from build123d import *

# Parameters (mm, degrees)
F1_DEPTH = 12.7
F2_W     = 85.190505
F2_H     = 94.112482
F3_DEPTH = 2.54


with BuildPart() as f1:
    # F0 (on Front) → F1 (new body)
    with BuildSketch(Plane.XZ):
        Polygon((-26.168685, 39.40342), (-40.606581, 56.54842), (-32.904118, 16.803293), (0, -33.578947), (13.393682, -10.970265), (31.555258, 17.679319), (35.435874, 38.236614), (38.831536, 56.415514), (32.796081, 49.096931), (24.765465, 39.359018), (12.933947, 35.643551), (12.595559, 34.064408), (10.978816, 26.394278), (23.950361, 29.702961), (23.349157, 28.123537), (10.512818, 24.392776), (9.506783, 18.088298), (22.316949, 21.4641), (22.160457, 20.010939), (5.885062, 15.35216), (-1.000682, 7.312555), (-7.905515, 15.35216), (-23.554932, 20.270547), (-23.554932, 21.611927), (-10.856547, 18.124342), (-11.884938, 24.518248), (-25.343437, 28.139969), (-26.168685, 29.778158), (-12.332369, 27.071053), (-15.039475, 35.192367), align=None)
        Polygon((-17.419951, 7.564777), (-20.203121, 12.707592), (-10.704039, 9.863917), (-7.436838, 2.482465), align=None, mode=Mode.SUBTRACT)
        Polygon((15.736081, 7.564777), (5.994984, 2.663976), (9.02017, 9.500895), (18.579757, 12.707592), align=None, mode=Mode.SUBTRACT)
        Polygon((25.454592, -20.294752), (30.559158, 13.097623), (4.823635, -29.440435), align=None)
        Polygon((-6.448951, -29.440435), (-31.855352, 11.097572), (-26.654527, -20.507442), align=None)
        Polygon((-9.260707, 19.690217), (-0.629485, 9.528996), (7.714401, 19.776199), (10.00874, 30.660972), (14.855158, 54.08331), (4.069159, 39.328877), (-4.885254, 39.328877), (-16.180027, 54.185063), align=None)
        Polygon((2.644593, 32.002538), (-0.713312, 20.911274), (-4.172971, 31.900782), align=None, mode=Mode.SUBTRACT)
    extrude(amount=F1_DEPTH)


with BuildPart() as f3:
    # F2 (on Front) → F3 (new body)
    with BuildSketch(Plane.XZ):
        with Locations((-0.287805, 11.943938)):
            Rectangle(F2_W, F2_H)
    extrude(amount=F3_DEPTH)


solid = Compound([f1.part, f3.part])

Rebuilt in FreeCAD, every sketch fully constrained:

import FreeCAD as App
import Part
import Sketcher
Q = App.Units.Quantity


def add_polygon(sketch, points):
    """Adds a closed chain of lines whose ends are joined by coincident constraints."""
    first, n = sketch.GeometryCount, len(points)
    for a, b in zip(points, points[1:] + points[:1]):
        sketch.addGeometry(Part.LineSegment(App.Vector(*a, 0), App.Vector(*b, 0)), False)
    for i in range(n):
        sketch.addConstraint(Sketcher.Constraint("Coincident", first + i, 2, first + (i + 1) % n, 1))

doc = App.newDocument("Part")
params = doc.addObject("Spreadsheet::Sheet", "Params")
for row, (alias, value) in enumerate([
    ("pad1_length", "0.5 in"),
    ("pad2_length", "0.1 in"),
], start=1):
    params.set(f"A{row}", alias)
    params.set(f"B{row}", "=" + value)
    params.setAlias(f"B{row}", alias)

body = doc.addObject("PartDesign::Body", "Body")
body.AllowCompound = True

# Sketch on XZ plane
sketch1 = body.newObject("Sketcher::SketchObject", "Sketch")
sketch1.AttachmentSupport = (doc.getObject("XZ_Plane"), [""])
sketch1.MapMode = "FlatFace"
add_polygon(sketch1, [(-26.168685, 39.40342), (-40.606581, 56.54842), (-32.904118, 16.803293), (0, -33.578947), (13.393682, -10.970265), (31.555258, 17.679319), (35.435874, 38.236614), (38.831536, 56.415514), (32.796081, 49.096931), (24.765465, 39.359018), (12.933947, 35.643551), (12.595559, 34.064408), (10.978816, 26.394278), (23.950361, 29.702961), (23.349157, 28.123537), (10.512818, 24.392776), (9.506783, 18.088298), (22.316949, 21.4641), (22.160457, 20.010939), (5.885062, 15.35216), (-1.000682, 7.312555), (-7.905515, 15.35216), (-23.554932, 20.270547), (-23.554932, 21.611927), (-10.856547, 18.124342), (-11.884938, 24.518248), (-25.343437, 28.139969), (-26.168685, 29.778158), (-12.332369, 27.071053), (-15.039475, 35.192367)])  # lines 0-29
add_polygon(sketch1, [(-7.436838, 2.482465), (-17.419951, 7.564777), (-20.203121, 12.707592), (-10.704039, 9.863917)])  # lines 30-33
add_polygon(sketch1, [(18.579757, 12.707592), (15.736081, 7.564777), (5.994984, 2.663976), (9.02017, 9.500895)])  # lines 34-37
add_polygon(sketch1, [(25.454592, -20.294752), (30.559158, 13.097623), (4.823635, -29.440435)])  # lines 38-40
add_polygon(sketch1, [(-6.448951, -29.440435), (-31.855352, 11.097572), (-26.654527, -20.507442)])  # lines 41-43
add_polygon(sketch1, [(-9.260707, 19.690217), (-0.629485, 9.528996), (7.714401, 19.776199), (10.00874, 30.660972), (14.855158, 54.08331), (4.069159, 39.328877), (-4.885254, 39.328877), (-16.180027, 54.185063)])  # lines 44-51
add_polygon(sketch1, [(-4.172971, 31.900782), (2.644593, 32.002538), (-0.713312, 20.911274)])  # lines 52-54
sketch1.addConstraint(Sketcher.Constraint("Vertical", 22))
sketch1.addConstraint(Sketcher.Constraint("Horizontal", 49))
sketch1.addConstraint(Sketcher.Constraint("PointOnObject", 2, 2, -2))
sketch1.addConstraint(Sketcher.Constraint("Parallel", 7, 8))
sketch1.addConstraint(Sketcher.Constraint("Parallel", 11, 46))
sketch1.addConstraint(Sketcher.Constraint("Horizontal", 18, 2, 20, 2))
sketch1.addConstraint(Sketcher.Constraint("Horizontal", 30, 2, 34, 2))
sketch1.addConstraint(Sketcher.Constraint("Horizontal", 31, 2, 37, 2))
sketch1.addConstraint(Sketcher.Constraint("Horizontal", 39, 2, 43, 2))
sketch1.addConstraint(Sketcher.Constraint("Vertical", 26, 2, 29, 2))
sketch1.addConstraint(Sketcher.Constraint("DistanceY", 2, 2, 40, 2, Q("0.5229998 in")))
sketch1.addConstraint(Sketcher.Constraint("DistanceY", 3, 2, -1, 1, Q("0.4319002 in")))
sketch1.addConstraint(Sketcher.Constraint("Distance", 33, 8.072201))
sketch1.addConstraint(Sketcher.Constraint("Distance", 45, 13.214598))
sketch1.addConstraint(Sketcher.Constraint("DistanceY", 22, 1, 22, 2, 1.34138))
sketch1.addConstraint(Sketcher.Constraint("DistanceY", -1, 1, 15, 2, 18.088298))
sketch1.addConstraint(Sketcher.Constraint("DistanceY", -1, 1, 16, 2, 21.4641))
sketch1.addConstraint(Sketcher.Constraint("DistanceX", -1, 1, 45, 2, 7.714401))
sketch1.addConstraint(Sketcher.Constraint("DistanceY", -1, 1, 45, 2, 19.776199))
sketch1.addConstraint(Sketcher.Constraint("DistanceX", 1, 2, 3, 2, 46.2978))
sketch1.addConstraint(Sketcher.Constraint("DistanceY", 4, 2, 0, 2, 38.869101))
sketch1.addConstraint(Sketcher.Constraint("DistanceY", 5, 2, 6, 2, 18.1789))
sketch1.addConstraint(Sketcher.Constraint("DistanceX", 3, 2, 7, 2, 19.402399))
sketch1.addConstraint(Sketcher.Constraint("DistanceY", 4, 2, 8, 2, 21.679699))
sketch1.addConstraint(Sketcher.Constraint("DistanceX", 10, 2, 4, 2, 18.959699))
sketch1.addConstraint(Sketcher.Constraint("DistanceX", 10, 2, 13, 2, 10.753598))
sketch1.addConstraint(Sketcher.Constraint("DistanceX", 14, 2, 11, 2, 0.465998))
sketch1.addConstraint(Sketcher.Constraint("DistanceY", 14, 2, 11, 2, 2.001502))
sketch1.addConstraint(Sketcher.Constraint("DistanceX", 17, 2, 13, 2, 1.1887))
sketch1.addConstraint(Sketcher.Constraint("DistanceX", 19, 2, 14, 2, 11.5135))
sketch1.addConstraint(Sketcher.Constraint("DistanceX", 20, 2, 15, 2, 17.412298))
sketch1.addConstraint(Sketcher.Constraint("DistanceY", 21, 2, 24, 2, 4.247701))
sketch1.addConstraint(Sketcher.Constraint("DistanceX", 24, 2, 18, 2, 17.77))
sketch1.addConstraint(Sketcher.Constraint("DistanceX", 25, 2, 24, 2, 13.458499))
sketch1.addConstraint(Sketcher.Constraint("DistanceX", 32, 2, 33, 2, 3.267201))
sketch1.addConstraint(Sketcher.Constraint("DistanceY", 35, 2, 34, 2, 4.900801))
sketch1.addConstraint(Sketcher.Constraint("DistanceX", 35, 2, 3, 2, 7.398698))
sketch1.addConstraint(Sketcher.Constraint("DistanceX", 37, 2, 17, 2, 3.5807))
sketch1.addConstraint(Sketcher.Constraint("DistanceX", 38, 2, 4, 2, 0.9961))
sketch1.addConstraint(Sketcher.Constraint("DistanceY", 39, 2, 33, 2, 31.9229))
sketch1.addConstraint(Sketcher.Constraint("DistanceX", 41, 2, 30, 2, 14.435401))
sketch1.addConstraint(Sketcher.Constraint("DistanceY", 36, 2, 44, 2, 0.028101))
sketch1.addConstraint(Sketcher.Constraint("DistanceX", 10, 2, 47, 2, 2.259599))
sketch1.addConstraint(Sketcher.Constraint("DistanceY", 10, 2, 47, 2, 20.018902))
sketch1.addConstraint(Sketcher.Constraint("DistanceX", 48, 2, 10, 2, 8.5264))
sketch1.addConstraint(Sketcher.Constraint("DistanceY", 11, 2, 48, 2, 12.934599))
sketch1.addConstraint(Sketcher.Constraint("DistanceY", 32, 2, 51, 2, 9.8263))
sketch1.addConstraint(Sketcher.Constraint("Distance", 2, 60.17517))
sketch1.addConstraint(Sketcher.Constraint("Distance", 3, 26.278189))
sketch1.addConstraint(Sketcher.Constraint("Distance", 6, 18.493321))
sketch1.addConstraint(Sketcher.Constraint("Distance", 7, 9.48622))
sketch1.addConstraint(Sketcher.Constraint("Distance", 9, 12.40119))
sketch1.addConstraint(Sketcher.Constraint("Distance", 10, 1.614992))
sketch1.addConstraint(Sketcher.Constraint("Distance", 11, 7.83867))
sketch1.addConstraint(Sketcher.Constraint("Distance", 13, 1.689978))
sketch1.addConstraint(Sketcher.Constraint("Distance", 18, 16.929049))
sketch1.addConstraint(Sketcher.Constraint("Distance", 21, 16.404109))
sketch1.addConstraint(Sketcher.Constraint("Distance", 24, 6.476081))
sketch1.addConstraint(Sketcher.Constraint("Distance", 25, 13.93729))
sketch1.addConstraint(Sketcher.Constraint("Distance", 26, 1.834311))
sketch1.addConstraint(Sketcher.Constraint("Distance", 30, 11.202341))
sketch1.addConstraint(Sketcher.Constraint("Distance", 35, 10.90444))
sketch1.addConstraint(Sketcher.Constraint("Distance", 36, 7.47631))
sketch1.addConstraint(Sketcher.Constraint("Distance", 38, 33.78028))
sketch1.addConstraint(Sketcher.Constraint("Distance", 40, 22.567231))
sketch1.addConstraint(Sketcher.Constraint("Distance", 42, 32.030072))
sketch1.addConstraint(Sketcher.Constraint("Distance", 44, 13.332232))
sketch1.addConstraint(Sketcher.Constraint("Distance", 46, 11.12395))
sketch1.addConstraint(Sketcher.Constraint("Distance", 47, 23.91848))
sketch1.addConstraint(Sketcher.Constraint("Distance", 54, 11.521221))
sketch1.addConstraint(Sketcher.Constraint("DistanceX", 49, 2, 49, 1, 8.954413))
sketch1.addConstraint(Sketcher.Constraint("DistanceX", 0, 2, -1, 1, 40.606581))
sketch1.addConstraint(Sketcher.Constraint("DistanceY", -1, 1, 0, 2, 56.54842))
sketch1.addConstraint(Sketcher.Constraint("DistanceX", -1, 1, 7, 2, 32.796081))
sketch1.addConstraint(Sketcher.Constraint("DistanceY", -1, 1, 7, 2, 49.096931))
sketch1.addConstraint(Sketcher.Constraint("DistanceY", -1, 1, 9, 2, 35.643551))
sketch1.addConstraint(Sketcher.Constraint("DistanceX", -1, 1, 10, 2, 12.595559))
sketch1.addConstraint(Sketcher.Constraint("DistanceY", -1, 1, 11, 2, 26.394278))
sketch1.addConstraint(Sketcher.Constraint("DistanceX", -1, 1, 12, 2, 23.950361))
sketch1.addConstraint(Sketcher.Constraint("DistanceY", -1, 1, 12, 2, 29.702961))
sketch1.addConstraint(Sketcher.Constraint("DistanceX", -1, 1, 16, 2, 22.316949))
sketch1.addConstraint(Sketcher.Constraint("DistanceY", -1, 1, 17, 2, 20.010939))
sketch1.addConstraint(Sketcher.Constraint("DistanceX", -1, 1, 18, 2, 5.885062))
sketch1.addConstraint(Sketcher.Constraint("DistanceY", -1, 1, 23, 2, 18.124342))
sketch1.addConstraint(Sketcher.Constraint("DistanceY", -1, 1, 24, 2, 24.518248))
sketch1.addConstraint(Sketcher.Constraint("DistanceY", -1, 1, 26, 2, 29.778158))
sketch1.addConstraint(Sketcher.Constraint("DistanceX", 27, 2, -1, 1, 12.332369))
sketch1.addConstraint(Sketcher.Constraint("DistanceY", -1, 1, 29, 2, 39.40342))
sketch1.addConstraint(Sketcher.Constraint("DistanceX", 30, 2, -1, 1, 17.419951))
sketch1.addConstraint(Sketcher.Constraint("DistanceX", 31, 2, -1, 1, 20.203121))
sketch1.addConstraint(Sketcher.Constraint("DistanceX", 32, 2, -1, 1, 10.704039))
sketch1.addConstraint(Sketcher.Constraint("DistanceX", -1, 1, 36, 2, 9.02017))
sketch1.addConstraint(Sketcher.Constraint("DistanceX", 43, 2, -1, 1, 6.448951))
sketch1.addConstraint(Sketcher.Constraint("DistanceX", 53, 2, -1, 1, 0.713312))
sketch1.addConstraint(Sketcher.Constraint("DistanceX", 54, 2, -1, 1, 4.172971))
sketch1.addConstraint(Sketcher.Constraint("DistanceY", -1, 1, 54, 2, 31.900782))
sketch1.addConstraint(Sketcher.Constraint("DistanceX", 18, 2, 15, 2, 3.621721))
sketch1.addConstraint(Sketcher.Constraint("DistanceY", 19, 2, 14, 2, 17.080221))
sketch1.addConstraint(Sketcher.Constraint("DistanceY", 23, 2, 27, 2, 8.946711))
sketch1.addConstraint(Sketcher.Constraint("DistanceY", 24, 2, 28, 2, 10.674119))
sketch1.addConstraint(Sketcher.Constraint("DistanceX", 26, 2, 28, 2, 11.12921))
sketch1.addConstraint(Sketcher.Constraint("DistanceY", 30, 2, 21, 2, 12.70577))
sketch1.addConstraint(Sketcher.Constraint("DistanceY", 31, 2, 23, 2, 5.41675))
sketch1.addConstraint(Sketcher.Constraint("DistanceY", 37, 2, 38, 2, 0.390031))
sketch1.addConstraint(Sketcher.Constraint("DistanceY", 41, 2, 1, 2, 5.705721))
sketch1.addConstraint(Sketcher.Constraint("DistanceY", 42, 2, 30, 2, 28.072219))
sketch1.addConstraint(Sketcher.Constraint("DistanceX", 29, 2, 50, 2, 9.988658))
sketch1.addConstraint(Sketcher.Constraint("DistanceY", 52, 2, 48, 2, 7.326339))
sketch1.addConstraint(Sketcher.Constraint("Distance", 50, 18.662212))
sketch1.addConstraint(Sketcher.Constraint("Distance", 52, 6.818323))
pad1 = body.newObject("PartDesign::Pad", "Pad")
pad1.Profile = sketch1
pad1.setExpression("Length", "Params.pad1_length")
body2 = doc.addObject("PartDesign::Body", "Body001")

# Sketch on XZ plane
sketch2 = body2.newObject("Sketcher::SketchObject", "Sketch001")
sketch2.AttachmentSupport = (doc.getObject("XZ_Plane001"), [""])
sketch2.MapMode = "FlatFace"
add_polygon(sketch2, [(-42.883057, 59.000179), (-42.883057, -35.112303), (42.307448, -35.112303), (42.307448, 59.000179)])  # lines 0-3
sketch2.addConstraint(Sketcher.Constraint("Vertical", 0))
sketch2.addConstraint(Sketcher.Constraint("Horizontal", 1))
sketch2.addConstraint(Sketcher.Constraint("Vertical", 2))
sketch2.addConstraint(Sketcher.Constraint("Horizontal", 3))
sketch2.addConstraint(Sketcher.Constraint("DistanceY", 0, 2, 0, 1, 94.112482))
sketch2.addConstraint(Sketcher.Constraint("DistanceX", 1, 1, 1, 2, 85.190505))
sketch2.addConstraint(Sketcher.Constraint("DistanceY", -1, 1, 2, 2, 59.000179))
sketch2.addConstraint(Sketcher.Constraint("DistanceX", 0, 2, -1, 1, 42.883057))
pad2 = body2.newObject("PartDesign::Pad", "Pad001")
pad2.Profile = sketch2
pad2.setExpression("Length", "Params.pad2_length")

doc.recompute()
